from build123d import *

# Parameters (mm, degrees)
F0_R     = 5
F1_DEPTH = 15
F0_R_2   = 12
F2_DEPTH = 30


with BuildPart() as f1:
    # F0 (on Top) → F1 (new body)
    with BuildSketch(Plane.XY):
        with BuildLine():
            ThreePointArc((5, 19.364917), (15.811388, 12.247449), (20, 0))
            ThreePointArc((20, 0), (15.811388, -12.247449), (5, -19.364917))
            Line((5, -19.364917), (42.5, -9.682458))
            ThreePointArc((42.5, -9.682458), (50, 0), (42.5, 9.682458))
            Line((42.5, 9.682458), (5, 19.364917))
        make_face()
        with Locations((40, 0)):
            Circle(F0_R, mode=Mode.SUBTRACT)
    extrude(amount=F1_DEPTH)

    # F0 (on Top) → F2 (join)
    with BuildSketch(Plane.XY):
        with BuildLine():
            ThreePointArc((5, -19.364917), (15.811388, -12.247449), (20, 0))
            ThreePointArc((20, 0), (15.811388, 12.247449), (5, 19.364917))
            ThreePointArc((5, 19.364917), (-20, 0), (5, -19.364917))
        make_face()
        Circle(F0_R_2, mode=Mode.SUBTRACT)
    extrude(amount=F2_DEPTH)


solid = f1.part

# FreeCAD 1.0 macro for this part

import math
import FreeCAD as App
import Part
import Sketcher

doc = App.newDocument("Part")
params = doc.addObject("Spreadsheet::Sheet", "Params")
for row, (alias, value) in enumerate([
    ("sketch1_diameter", "10 mm"),
    ("sketch1_radius", "20.000001 mm"),
    ("sketch1_radius2", "10 mm"),
    ("pad1_length", "15 mm"),
    ("sketch2_diameter", "24 mm"),
    ("sketch2_radius", "20.000001 mm"),
    ("pad2_length", "30 mm"),
], start=1):
    params.set(f"A{row}", alias)
    params.set(f"B{row}", "=" + value)
    params.setAlias(f"B{row}", alias)

body = doc.addObject("PartDesign::Body", "Body")

# Sketch on XY plane
sketch1 = body.newObject("Sketcher::SketchObject", "Sketch")
sketch1.AttachmentSupport = (doc.getObject("XY_Plane"), [""])
sketch1.MapMode = "FlatFace"
sketch1.addGeometry([
    Part.ArcOfCircle(Part.Circle(App.Vector(0, 0, 0), App.Vector(0, 0, 1), 20), math.radians(0), math.radians(76)),  # 0
    Part.ArcOfCircle(Part.Circle(App.Vector(0, 0, 0), App.Vector(0, 0, 1), 20), math.radians(-76), math.radians(0)),  # 1
    Part.LineSegment(App.Vector(5, -19, 0), App.Vector(42, -10, 0)),  # 2
    Part.ArcOfCircle(Part.Circle(App.Vector(40, 0, 0), App.Vector(0, 0, 1), 10), math.radians(-76), math.radians(76)),  # 3
    Part.LineSegment(App.Vector(42, 10, 0), App.Vector(5, 19, 0)),  # 4
    Part.Circle(App.Vector(40, 0, 0), App.Vector(0, 0, 1), 5),  # 5
], False)
sketch1.addConstraint([
    Sketcher.Constraint("Tangent", 0, 1, 1, 2),
    Sketcher.Constraint("Tangent", 1, 1, 2, 1),
    Sketcher.Constraint("Tangent", 2, 2, 3, 1),
    Sketcher.Constraint("Tangent", 3, 2, 4, 1),
    Sketcher.Constraint("Tangent", 4, 2, 0, 2),
    Sketcher.Constraint("Coincident", 0, 3, -1, 1),
    Sketcher.Constraint("Coincident", 5, 3, 3, 3),
    Sketcher.Constraint("Equal", 0, 1),
    Sketcher.Constraint("PointOnObject", 3, 3, -1),
    Sketcher.Constraint("PointOnObject", 0, 1, -1),
    Sketcher.Constraint("Diameter", 5, 10.0),
    Sketcher.Constraint("Radius", 0, 20.000001),
    Sketcher.Constraint("Radius", 3, 10.0),
    Sketcher.Constraint("DistanceX", -1, 1, 3, 3, 40.0),
])
sketch1.setExpression("Constraints[10]", "Params.sketch1_diameter")
sketch1.setExpression("Constraints[11]", "Params.sketch1_radius")
sketch1.setExpression("Constraints[12]", "Params.sketch1_radius2")
pad1 = body.newObject("PartDesign::Pad", "Pad")
pad1.Profile = sketch1
pad1.setExpression("Length", "Params.pad1_length")

# Sketch on XY plane
sketch2 = body.newObject("Sketcher::SketchObject", "Sketch001")
sketch2.AttachmentSupport = (doc.getObject("XY_Plane"), [""])
sketch2.MapMode = "FlatFace"
sketch2.addGeometry([
    Part.ArcOfCircle(Part.Circle(App.Vector(0, 0, 0), App.Vector(0, 0, 1), 20), math.radians(-76), math.radians(0)),
    Part.ArcOfCircle(Part.Circle(App.Vector(0, 0, 0), App.Vector(0, 0, 1), 20), math.radians(0), math.radians(76)),
    Part.ArcOfCircle(Part.Circle(App.Vector(0, 0, 0), App.Vector(0, 0, 1), 20), math.radians(76), math.radians(284)),
    Part.Circle(App.Vector(0, 0, 0), App.Vector(0, 0, 1), 12),
], False)
sketch2.addConstraint([
    Sketcher.Constraint("Tangent", 0, 2, 1, 1),
    Sketcher.Constraint("Tangent", 1, 2, 2, 1),
    Sketcher.Constraint("Tangent", 2, 2, 0, 1),
    Sketcher.Constraint("Coincident", 0, 3, -1, 1),
    Sketcher.Constraint("Coincident", 3, 3, -1, 1),
    Sketcher.Constraint("PointOnObject", 0, 2, -1),
    Sketcher.Constraint("Vertical", 1, 2, 2, 2),
    Sketcher.Constraint("Diameter", 3, 24.0),
    Sketcher.Constraint("Radius", 0, 20.000001),
    Sketcher.Constraint("DistanceX", -1, 1, 1, 2, 5.0),
])
sketch2.setExpression("Constraints[7]", "Params.sketch2_diameter")
sketch2.setExpression("Constraints[8]", "Params.sketch2_radius")
pad2 = body.newObject("PartDesign::Pad", "Pad001")
pad2.Profile = sketch2
pad2.setExpression("Length", "Params.pad2_length")

doc.recompute()
